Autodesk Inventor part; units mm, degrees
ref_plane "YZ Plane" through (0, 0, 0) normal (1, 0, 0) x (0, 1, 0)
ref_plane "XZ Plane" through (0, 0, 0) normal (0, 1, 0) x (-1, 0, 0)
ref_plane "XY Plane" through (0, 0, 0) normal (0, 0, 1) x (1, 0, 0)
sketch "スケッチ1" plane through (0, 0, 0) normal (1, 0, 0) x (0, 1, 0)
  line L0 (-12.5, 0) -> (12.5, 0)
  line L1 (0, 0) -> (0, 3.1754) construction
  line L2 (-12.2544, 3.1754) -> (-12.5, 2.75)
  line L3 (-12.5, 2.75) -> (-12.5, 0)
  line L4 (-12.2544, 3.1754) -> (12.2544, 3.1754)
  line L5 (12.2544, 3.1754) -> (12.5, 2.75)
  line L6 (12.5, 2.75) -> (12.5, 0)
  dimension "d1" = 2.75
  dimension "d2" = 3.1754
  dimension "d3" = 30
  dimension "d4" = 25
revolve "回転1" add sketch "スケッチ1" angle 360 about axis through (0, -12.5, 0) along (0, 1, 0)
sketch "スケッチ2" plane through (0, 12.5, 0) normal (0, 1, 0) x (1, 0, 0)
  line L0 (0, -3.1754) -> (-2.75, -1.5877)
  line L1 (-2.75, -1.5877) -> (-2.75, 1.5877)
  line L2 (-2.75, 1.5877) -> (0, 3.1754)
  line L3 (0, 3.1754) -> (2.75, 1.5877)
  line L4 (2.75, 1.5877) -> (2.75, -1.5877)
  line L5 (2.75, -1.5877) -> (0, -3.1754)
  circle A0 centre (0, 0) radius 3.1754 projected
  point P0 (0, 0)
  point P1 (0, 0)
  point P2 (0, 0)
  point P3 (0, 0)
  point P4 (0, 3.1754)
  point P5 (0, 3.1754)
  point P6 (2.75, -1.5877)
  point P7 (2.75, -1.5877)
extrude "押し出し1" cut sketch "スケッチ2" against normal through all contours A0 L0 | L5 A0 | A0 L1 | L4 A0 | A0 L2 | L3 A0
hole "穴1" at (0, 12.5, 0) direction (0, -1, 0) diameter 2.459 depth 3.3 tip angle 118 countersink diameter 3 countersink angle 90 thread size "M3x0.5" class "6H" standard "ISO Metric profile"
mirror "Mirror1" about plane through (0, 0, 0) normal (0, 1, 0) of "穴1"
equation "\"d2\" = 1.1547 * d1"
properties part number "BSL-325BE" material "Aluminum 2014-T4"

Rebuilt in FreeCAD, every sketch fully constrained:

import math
import FreeCAD as App
import Part
import Sketcher
from FreeCAD import Vector
Q = App.Units.Quantity


def add_polygon(sketch, points):
    """Adds a closed chain of lines whose ends are joined by coincident constraints."""
    first, n = sketch.GeometryCount, len(points)
    for a, b in zip(points, points[1:] + points[:1]):
        sketch.addGeometry(Part.LineSegment(App.Vector(*a, 0), App.Vector(*b, 0)), False)
    for i in range(n):
        sketch.addConstraint(Sketcher.Constraint("Coincident", first + i, 2, first + (i + 1) % n, 1))

doc = App.newDocument("Part")
body = doc.addObject("PartDesign::Body", "Body")

sketch1 = doc.addObject("Sketcher::SketchObject", "Sketch")
body.addObject(sketch1)
sketch1.AttachmentSupport = (doc.YZ_Plane, [""])
sketch1.MapMode = "FlatFace"
add_polygon(sketch1, [(-12.5, 2.75), (-12.5, 0), (12.5, 0), (12.5, 2.75), (12.25, 3.18), (-12.25, 3.18)])
sketch1.addConstraint([
    Sketcher.Constraint("Vertical", 0),
    Sketcher.Constraint("Horizontal", 1),
    Sketcher.Constraint("Vertical", 2),
    Sketcher.Constraint("Horizontal", 4),
    Sketcher.Constraint("Symmetric", 0, 2, 1, 2, -1, 1),
    Sketcher.Constraint("Horizontal", 2, 2, 5, 2),
    Sketcher.Constraint("Equal", 3, 5),
    Sketcher.Constraint("DistanceX", 1, 1, 1, 2, 25.0),
    Sketcher.Constraint("DistanceY", 0, 2, 0, 1, 2.75),
    Sketcher.Constraint("Angle", 3, Q("119.9995 deg")),
    Sketcher.Constraint("DistanceY", -1, 1, 3, 2, 3.1754),
])
revolution = doc.addObject("PartDesign::Revolution", "Revolution")
body.addObject(revolution)
revolution.Profile = sketch1
revolution.ReferenceAxis = (sketch1, ["H_Axis"])
revolution.Angle = 360

sketch2 = doc.addObject("Sketcher::SketchObject", "Sketch001")
body.addObject(sketch2)
sketch2.AttachmentSupport = (doc.XZ_Plane, [""])
sketch2.MapMode = "FlatFace"
sketch2.AttachmentOffset = App.Placement(Vector(0, 0, -12.5), App.Rotation())
sketch2.addGeometry([
    Part.ArcOfCircle(Part.Circle(Vector(0, 0, 0), Vector(0, 0, 1), 3.2), math.radians(90), math.radians(150)),
    Part.LineSegment(Vector(0, 3.2, 0), Vector(-2.8, 1.6, 0)),
    Part.LineSegment(Vector(2.8, 1.6, 0), Vector(0, 3.2, 0)),
    Part.ArcOfCircle(Part.Circle(Vector(0, 0, 0), Vector(0, 0, 1), 3.2), math.radians(30), math.radians(90)),
    Part.ArcOfCircle(Part.Circle(Vector(0, 0, 0), Vector(0, 0, 1), 3.2), math.radians(150), math.radians(210)),
    Part.LineSegment(Vector(-2.8, -1.6, 0), Vector(-2.8, 1.6, 0)),
    Part.LineSegment(Vector(2.8, -1.6, 0), Vector(2.8, 1.6, 0)),
    Part.ArcOfCircle(Part.Circle(Vector(0, 0, 0), Vector(0, 0, 1), 3.2), math.radians(-30), math.radians(30)),
    Part.ArcOfCircle(Part.Circle(Vector(0, 0, 0), Vector(0, 0, 1), 3.2), math.radians(-150), math.radians(-90)),
    Part.LineSegment(Vector(0, -3.2, 0), Vector(-2.8, -1.6, 0)),
    Part.LineSegment(Vector(0, -3.2, 0), Vector(2.8, -1.6, 0)),
    Part.ArcOfCircle(Part.Circle(Vector(0, 0, 0), Vector(0, 0, 1), 3.2), math.radians(-90), math.radians(-30)),
], False)
sketch2.addConstraint([
    Sketcher.Constraint("Coincident", 0, 1, 1, 1),
    Sketcher.Constraint("Coincident", 1, 2, 0, 2),
    Sketcher.Constraint("Coincident", 2, 1, 3, 1),
    Sketcher.Constraint("Coincident", 3, 2, 2, 2),
    Sketcher.Constraint("Coincident", 4, 1, 5, 2),
    Sketcher.Constraint("Coincident", 5, 1, 4, 2),
    Sketcher.Constraint("Coincident", 6, 1, 7, 1),
    Sketcher.Constraint("Coincident", 7, 2, 6, 2),
    Sketcher.Constraint("Coincident", 8, 1, 9, 2),
    Sketcher.Constraint("Coincident", 9, 1, 8, 2),
    Sketcher.Constraint("Coincident", 10, 1, 11, 1),
    Sketcher.Constraint("Coincident", 11, 2, 10, 2),
    Sketcher.Constraint("Vertical", 5),
    Sketcher.Constraint("Vertical", 6),
    Sketcher.Constraint("Coincident", 0, 3, -1, 1),
    Sketcher.Constraint("Coincident", 3, 3, -1, 1),
    Sketcher.Constraint("Coincident", 4, 3, -1, 1),
    Sketcher.Constraint("Coincident", 7, 3, -1, 1),
    Sketcher.Constraint("Coincident", 8, 3, -1, 1),
    Sketcher.Constraint("Coincident", 11, 3, -1, 1),
    Sketcher.Constraint("Coincident", 3, 2, 0, 1),
    Sketcher.Constraint("Coincident", 4, 1, 1, 2),
    Sketcher.Constraint("Coincident", 7, 2, 2, 1),
    Sketcher.Constraint("Coincident", 8, 1, 5, 1),
    Sketcher.Constraint("Coincident", 10, 1, 9, 1),
    Sketcher.Constraint("PointOnObject", 0, 1, -2),
    Sketcher.Constraint("PointOnObject", 9, 1, -2),
    Sketcher.Constraint("Parallel", 2, 9),
    Sketcher.Constraint("Parallel", 1, 10),
    Sketcher.Constraint("Angle", 1, Q("-150.0002 deg")),
    Sketcher.Constraint("Radius", 0, 3.1754),
])
pocket1 = doc.addObject("PartDesign::Pocket", "Pocket")
body.addObject(pocket1)
pocket1.Profile = sketch2
pocket1.Type = "ThroughAll"
pocket1.Reversed = True

sketch3 = doc.addObject("Sketcher::SketchObject", "Sketch002")
body.addObject(sketch3)
sketch3.AttachmentSupport = (doc.XZ_Plane, [""])
sketch3.MapMode = "FlatFace"
sketch3.AttachmentOffset = App.Placement(Vector(0, 0, -12.5), App.Rotation())
sketch3.addGeometry(Part.Circle(Vector(0, 0, 0), Vector(0, 0, 1), 1.2), False)
sketch3.addConstraint([
    Sketcher.Constraint("Coincident", 0, 3, -1, 1),
    Sketcher.Constraint("Diameter", 0, 2.459),
])
doc.recompute()
hole = doc.addObject("PartDesign::Hole", "Hole")
body.addObject(hole)
hole.Profile = sketch3
hole.ThreadType = "None"
hole.Diameter = 2.459
hole.DepthType = "Dimension"
hole.Depth = 3.3
hole.DrillPoint = "Angled"
hole.DrillPointAngle = 118
hole.HoleCutType = "Countersink"
hole.HoleCutDiameter = 3
hole.HoleCutCountersinkAngle = 90
hole.Reversed = True
doc.recompute()

mirrored = doc.addObject("PartDesign::Mirrored", "Mirrored")
body.addObject(mirrored)
mirrored.Originals = [hole]
mirrored.MirrorPlane = (doc.XZ_Plane, [""])
body.Tip = mirrored

doc.recompute()
